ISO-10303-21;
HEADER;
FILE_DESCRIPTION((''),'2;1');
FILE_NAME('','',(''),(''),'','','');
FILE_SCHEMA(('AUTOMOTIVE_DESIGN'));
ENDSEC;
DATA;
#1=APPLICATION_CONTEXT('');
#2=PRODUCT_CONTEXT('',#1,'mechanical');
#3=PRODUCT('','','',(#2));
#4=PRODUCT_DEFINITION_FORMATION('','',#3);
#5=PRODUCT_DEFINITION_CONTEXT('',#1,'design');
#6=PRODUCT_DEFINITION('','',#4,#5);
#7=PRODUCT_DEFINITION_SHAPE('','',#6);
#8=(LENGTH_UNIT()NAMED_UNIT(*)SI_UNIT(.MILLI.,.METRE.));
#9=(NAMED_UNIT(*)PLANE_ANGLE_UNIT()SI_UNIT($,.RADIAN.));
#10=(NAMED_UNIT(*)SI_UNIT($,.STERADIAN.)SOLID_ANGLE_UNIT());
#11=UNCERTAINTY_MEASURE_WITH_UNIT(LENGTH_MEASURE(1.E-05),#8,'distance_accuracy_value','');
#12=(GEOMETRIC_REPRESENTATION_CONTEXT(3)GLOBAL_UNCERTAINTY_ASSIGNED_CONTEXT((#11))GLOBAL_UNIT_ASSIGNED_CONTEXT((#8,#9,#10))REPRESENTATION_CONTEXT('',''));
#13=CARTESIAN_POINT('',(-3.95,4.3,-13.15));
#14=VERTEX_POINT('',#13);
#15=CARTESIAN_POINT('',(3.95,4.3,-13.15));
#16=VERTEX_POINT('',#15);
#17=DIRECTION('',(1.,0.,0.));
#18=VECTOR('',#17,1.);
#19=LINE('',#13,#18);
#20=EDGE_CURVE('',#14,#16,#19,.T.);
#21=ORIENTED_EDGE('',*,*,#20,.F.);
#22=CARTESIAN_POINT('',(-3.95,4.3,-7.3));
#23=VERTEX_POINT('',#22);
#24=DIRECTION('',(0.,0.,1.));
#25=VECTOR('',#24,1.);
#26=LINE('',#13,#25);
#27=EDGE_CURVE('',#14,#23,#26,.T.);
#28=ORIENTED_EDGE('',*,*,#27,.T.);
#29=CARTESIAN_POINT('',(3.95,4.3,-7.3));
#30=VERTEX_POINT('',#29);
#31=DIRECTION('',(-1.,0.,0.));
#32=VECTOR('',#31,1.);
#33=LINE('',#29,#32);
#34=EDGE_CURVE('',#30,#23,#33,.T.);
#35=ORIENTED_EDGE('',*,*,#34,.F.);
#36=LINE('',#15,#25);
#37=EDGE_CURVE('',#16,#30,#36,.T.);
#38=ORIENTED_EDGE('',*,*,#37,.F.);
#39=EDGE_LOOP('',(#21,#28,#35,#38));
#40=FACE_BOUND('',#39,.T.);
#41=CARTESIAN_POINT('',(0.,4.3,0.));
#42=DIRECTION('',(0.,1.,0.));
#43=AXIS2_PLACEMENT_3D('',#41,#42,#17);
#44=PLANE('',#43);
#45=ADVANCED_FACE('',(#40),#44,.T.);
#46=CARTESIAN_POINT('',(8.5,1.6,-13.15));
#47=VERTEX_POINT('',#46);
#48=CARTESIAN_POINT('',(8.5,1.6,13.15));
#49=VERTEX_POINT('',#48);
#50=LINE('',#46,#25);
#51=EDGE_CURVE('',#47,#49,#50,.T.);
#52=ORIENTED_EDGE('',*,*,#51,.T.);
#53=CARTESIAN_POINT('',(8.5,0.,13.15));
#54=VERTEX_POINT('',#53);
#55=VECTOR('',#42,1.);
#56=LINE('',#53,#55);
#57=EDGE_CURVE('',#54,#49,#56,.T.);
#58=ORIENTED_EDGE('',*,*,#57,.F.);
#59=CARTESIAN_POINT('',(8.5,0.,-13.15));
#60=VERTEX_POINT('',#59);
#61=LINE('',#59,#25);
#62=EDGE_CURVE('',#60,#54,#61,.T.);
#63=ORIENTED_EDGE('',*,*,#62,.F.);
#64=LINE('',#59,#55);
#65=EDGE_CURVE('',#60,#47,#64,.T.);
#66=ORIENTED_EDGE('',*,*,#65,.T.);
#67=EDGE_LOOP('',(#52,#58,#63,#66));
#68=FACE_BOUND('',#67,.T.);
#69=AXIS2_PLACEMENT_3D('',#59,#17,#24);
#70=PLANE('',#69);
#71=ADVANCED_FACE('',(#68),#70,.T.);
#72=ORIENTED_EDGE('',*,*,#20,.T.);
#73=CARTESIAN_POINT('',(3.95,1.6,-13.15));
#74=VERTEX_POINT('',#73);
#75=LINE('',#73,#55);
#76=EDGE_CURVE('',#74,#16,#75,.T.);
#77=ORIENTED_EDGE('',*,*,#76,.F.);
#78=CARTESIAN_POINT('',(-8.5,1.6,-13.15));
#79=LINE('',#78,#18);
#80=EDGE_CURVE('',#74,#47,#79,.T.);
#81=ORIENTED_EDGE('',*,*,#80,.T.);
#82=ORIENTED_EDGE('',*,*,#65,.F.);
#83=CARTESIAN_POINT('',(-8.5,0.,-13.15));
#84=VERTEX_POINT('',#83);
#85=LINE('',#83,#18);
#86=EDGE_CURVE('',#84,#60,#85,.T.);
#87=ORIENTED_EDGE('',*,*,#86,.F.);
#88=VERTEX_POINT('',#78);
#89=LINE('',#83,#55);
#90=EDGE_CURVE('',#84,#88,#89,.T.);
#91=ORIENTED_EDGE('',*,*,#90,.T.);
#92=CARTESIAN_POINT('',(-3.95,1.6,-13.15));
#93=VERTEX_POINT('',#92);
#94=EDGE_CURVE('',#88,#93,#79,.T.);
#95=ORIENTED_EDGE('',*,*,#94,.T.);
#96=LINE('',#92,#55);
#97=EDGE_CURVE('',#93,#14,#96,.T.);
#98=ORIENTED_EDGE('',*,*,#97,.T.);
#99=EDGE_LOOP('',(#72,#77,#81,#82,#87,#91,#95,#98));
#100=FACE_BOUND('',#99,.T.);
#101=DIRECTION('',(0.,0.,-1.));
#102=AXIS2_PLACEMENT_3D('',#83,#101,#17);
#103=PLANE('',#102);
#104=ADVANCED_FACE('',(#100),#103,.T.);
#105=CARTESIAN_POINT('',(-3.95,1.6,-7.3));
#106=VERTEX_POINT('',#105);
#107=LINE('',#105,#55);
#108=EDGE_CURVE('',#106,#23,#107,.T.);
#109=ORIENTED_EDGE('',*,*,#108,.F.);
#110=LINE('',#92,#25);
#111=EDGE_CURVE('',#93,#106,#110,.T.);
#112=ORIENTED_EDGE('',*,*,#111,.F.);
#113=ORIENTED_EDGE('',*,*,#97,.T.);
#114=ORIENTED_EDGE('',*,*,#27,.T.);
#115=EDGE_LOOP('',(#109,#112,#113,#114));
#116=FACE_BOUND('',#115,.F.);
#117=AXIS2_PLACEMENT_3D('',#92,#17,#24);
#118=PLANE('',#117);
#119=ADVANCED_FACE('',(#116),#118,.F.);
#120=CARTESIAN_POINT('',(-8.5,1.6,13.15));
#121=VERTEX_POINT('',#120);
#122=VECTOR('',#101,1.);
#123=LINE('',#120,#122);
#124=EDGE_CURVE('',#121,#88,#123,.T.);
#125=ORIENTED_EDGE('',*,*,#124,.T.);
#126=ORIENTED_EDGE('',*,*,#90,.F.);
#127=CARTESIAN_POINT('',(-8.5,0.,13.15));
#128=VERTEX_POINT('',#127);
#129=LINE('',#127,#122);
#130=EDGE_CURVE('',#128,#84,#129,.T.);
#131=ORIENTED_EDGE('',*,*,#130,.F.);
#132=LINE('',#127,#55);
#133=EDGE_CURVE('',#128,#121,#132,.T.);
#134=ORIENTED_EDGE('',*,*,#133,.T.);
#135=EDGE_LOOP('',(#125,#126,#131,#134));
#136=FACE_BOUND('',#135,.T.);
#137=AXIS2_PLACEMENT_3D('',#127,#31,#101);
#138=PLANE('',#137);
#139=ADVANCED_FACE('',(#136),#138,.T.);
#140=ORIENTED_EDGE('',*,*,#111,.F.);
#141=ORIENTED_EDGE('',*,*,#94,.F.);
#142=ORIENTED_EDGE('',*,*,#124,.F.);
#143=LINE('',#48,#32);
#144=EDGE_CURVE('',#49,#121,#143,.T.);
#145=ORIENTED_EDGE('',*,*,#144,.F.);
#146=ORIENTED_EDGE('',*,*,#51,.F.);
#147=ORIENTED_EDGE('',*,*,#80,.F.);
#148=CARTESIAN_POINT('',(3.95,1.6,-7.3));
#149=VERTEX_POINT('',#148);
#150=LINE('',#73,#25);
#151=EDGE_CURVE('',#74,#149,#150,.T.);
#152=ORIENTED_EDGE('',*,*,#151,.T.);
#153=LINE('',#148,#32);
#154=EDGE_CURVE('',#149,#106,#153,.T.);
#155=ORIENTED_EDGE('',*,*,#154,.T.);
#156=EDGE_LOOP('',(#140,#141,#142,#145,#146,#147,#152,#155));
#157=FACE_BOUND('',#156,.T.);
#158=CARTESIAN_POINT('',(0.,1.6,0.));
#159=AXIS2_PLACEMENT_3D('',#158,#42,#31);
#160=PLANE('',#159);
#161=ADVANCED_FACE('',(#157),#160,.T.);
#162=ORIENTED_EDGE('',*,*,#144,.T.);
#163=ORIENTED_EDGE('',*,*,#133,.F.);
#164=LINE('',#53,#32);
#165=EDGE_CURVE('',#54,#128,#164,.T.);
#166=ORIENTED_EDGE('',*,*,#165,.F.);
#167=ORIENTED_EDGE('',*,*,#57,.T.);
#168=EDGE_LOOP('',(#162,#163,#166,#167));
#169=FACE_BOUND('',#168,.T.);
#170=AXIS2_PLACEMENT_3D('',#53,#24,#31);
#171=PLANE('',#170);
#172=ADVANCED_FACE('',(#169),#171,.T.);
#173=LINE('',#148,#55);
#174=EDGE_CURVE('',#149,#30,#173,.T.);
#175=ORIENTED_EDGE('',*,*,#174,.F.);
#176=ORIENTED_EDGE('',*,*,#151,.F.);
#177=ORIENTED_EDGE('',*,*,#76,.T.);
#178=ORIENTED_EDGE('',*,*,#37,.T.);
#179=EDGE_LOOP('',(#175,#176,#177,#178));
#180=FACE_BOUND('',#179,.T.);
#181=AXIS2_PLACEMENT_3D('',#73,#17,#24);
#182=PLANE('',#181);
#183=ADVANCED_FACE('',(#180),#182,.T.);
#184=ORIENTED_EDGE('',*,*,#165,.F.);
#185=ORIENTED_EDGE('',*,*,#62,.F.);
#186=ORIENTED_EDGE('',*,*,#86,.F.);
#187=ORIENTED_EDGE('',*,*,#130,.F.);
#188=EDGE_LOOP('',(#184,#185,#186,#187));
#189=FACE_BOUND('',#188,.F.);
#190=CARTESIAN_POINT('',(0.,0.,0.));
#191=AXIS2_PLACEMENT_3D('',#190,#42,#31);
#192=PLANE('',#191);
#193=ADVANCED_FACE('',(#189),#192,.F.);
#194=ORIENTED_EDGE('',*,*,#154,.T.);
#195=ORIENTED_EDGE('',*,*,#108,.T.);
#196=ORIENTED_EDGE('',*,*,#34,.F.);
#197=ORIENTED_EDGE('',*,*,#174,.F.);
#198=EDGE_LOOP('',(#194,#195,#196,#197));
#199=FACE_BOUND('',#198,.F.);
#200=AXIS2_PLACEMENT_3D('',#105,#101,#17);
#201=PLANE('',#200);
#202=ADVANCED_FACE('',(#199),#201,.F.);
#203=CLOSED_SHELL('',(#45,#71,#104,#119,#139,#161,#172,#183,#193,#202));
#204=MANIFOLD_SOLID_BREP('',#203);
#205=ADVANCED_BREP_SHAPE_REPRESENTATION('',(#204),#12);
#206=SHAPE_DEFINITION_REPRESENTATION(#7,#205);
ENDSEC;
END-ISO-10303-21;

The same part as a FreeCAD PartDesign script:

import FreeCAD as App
import Part
import Sketcher
Q = App.Units.Quantity

doc = App.newDocument("Part")
body = doc.addObject("PartDesign::Body", "Body")

# Sketch on XZ plane
sketch1 = body.newObject("Sketcher::SketchObject", "Sketch")
sketch1.AttachmentSupport = (doc.getObject("XZ_Plane"), [""])
sketch1.MapMode = "FlatFace"
sketch1.addGeometry([
    Part.LineSegment(App.Vector(-8, 13, 0), App.Vector(8, 13, 0)),
    Part.LineSegment(App.Vector(8, 13, 0), App.Vector(8, -13, 0)),
    Part.LineSegment(App.Vector(8, -13, 0), App.Vector(-8, -13, 0)),
    Part.LineSegment(App.Vector(-8, -13, 0), App.Vector(-8, 13, 0)),
], False)
sketch1.addConstraint([
    Sketcher.Constraint("Coincident", 0, 2, 1, 1),
    Sketcher.Constraint("Coincident", 1, 2, 2, 1),
    Sketcher.Constraint("Coincident", 2, 2, 3, 1),
    Sketcher.Constraint("Coincident", 3, 2, 0, 1),
    Sketcher.Constraint("Horizontal", 0),
    Sketcher.Constraint("Vertical", 1),
    Sketcher.Constraint("Horizontal", 2),
    Sketcher.Constraint("Vertical", 3),
    Sketcher.Constraint("Symmetric", 0, 2, 2, 2, -1, 1),
    Sketcher.Constraint("DistanceX", 0, 1, 0, 2, Q("17 mm")),
    Sketcher.Constraint("DistanceY", 1, 2, 1, 1, Q("26.3 mm")),
])
pad1 = body.newObject("PartDesign::Pad", "Pad")
pad1.Profile = sketch1
pad1.Length = 1.6
pad1.Reversed = True

# Sketch on XZ plane
sketch2 = body.newObject("Sketcher::SketchObject", "Sketch001")
sketch2.AttachmentSupport = (doc.getObject("XZ_Plane"), [""])
sketch2.MapMode = "FlatFace"
sketch2.AttachmentOffset = App.Placement(App.Vector(0, 0, -1.6), App.Rotation())
sketch2.addGeometry([
    Part.LineSegment(App.Vector(4, -13, 0), App.Vector(-4, -13, 0)),
    Part.LineSegment(App.Vector(-4, -13, 0), App.Vector(-4, -7, 0)),
    Part.LineSegment(App.Vector(-4, -7, 0), App.Vector(4, -7, 0)),
    Part.LineSegment(App.Vector(4, -7, 0), App.Vector(4, -13, 0)),
], False)
sketch2.addConstraint([
    Sketcher.Constraint("Coincident", 0, 2, 1, 1),
    Sketcher.Constraint("Coincident", 1, 2, 2, 1),
    Sketcher.Constraint("Coincident", 2, 2, 3, 1),
    Sketcher.Constraint("Coincident", 3, 2, 0, 1),
    Sketcher.Constraint("Horizontal", 0),
    Sketcher.Constraint("Vertical", 1),
    Sketcher.Constraint("Horizontal", 2),
    Sketcher.Constraint("Vertical", 3),
    Sketcher.Constraint("DistanceY", 1, 1, 1, 2, Q("5.85 mm")),
    Sketcher.Constraint("DistanceX", 0, 2, -1, 1, Q("3.95 mm")),
    Sketcher.Constraint("DistanceX", -1, 1, 2, 2, Q("3.95 mm")),
    Sketcher.Constraint("DistanceY", 1, 2, -1, 1, Q("7.3 mm")),
])
pad2 = body.newObject("PartDesign::Pad", "Pad001")
pad2.Profile = sketch2
pad2.Length = 2.7
pad2.Reversed = True

doc.recompute()
